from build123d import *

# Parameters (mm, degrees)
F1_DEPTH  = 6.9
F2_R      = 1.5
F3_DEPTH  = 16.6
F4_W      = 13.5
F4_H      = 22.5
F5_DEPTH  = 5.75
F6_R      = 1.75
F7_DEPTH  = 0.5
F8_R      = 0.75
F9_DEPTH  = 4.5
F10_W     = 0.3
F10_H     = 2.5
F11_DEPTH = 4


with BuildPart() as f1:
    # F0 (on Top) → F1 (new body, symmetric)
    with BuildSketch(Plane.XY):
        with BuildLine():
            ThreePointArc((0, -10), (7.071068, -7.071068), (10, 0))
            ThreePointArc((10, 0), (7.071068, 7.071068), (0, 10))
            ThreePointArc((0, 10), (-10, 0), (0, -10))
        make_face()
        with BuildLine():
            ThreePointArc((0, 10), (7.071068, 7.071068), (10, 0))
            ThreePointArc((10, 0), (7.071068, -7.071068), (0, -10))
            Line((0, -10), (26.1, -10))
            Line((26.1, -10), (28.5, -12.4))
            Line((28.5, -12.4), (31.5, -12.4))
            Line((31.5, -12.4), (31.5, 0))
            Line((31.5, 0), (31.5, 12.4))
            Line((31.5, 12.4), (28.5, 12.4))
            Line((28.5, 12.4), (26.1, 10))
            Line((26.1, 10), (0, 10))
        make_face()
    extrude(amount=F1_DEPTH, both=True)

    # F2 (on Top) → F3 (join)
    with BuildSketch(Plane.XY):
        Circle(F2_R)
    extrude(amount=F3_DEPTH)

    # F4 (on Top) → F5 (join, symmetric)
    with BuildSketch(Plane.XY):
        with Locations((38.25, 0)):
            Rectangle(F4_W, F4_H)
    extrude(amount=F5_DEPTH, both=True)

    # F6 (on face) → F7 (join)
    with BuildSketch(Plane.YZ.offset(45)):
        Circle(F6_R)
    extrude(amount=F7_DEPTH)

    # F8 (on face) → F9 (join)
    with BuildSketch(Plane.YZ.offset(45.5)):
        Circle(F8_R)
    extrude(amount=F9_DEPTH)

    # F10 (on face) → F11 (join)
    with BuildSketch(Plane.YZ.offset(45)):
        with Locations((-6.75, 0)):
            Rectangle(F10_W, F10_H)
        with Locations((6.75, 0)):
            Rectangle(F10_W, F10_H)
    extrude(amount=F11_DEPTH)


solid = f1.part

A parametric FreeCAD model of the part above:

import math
import FreeCAD as App
import Part
import Sketcher

doc = App.newDocument("Part")
body = doc.addObject("PartDesign::Body", "Body")

# Sketch on XY plane
sketch1 = body.newObject("Sketcher::SketchObject", "Sketch")
sketch1.AttachmentSupport = (doc.getObject("XY_Plane"), [""])
sketch1.MapMode = "FlatFace"
sketch1.addGeometry([
    Part.ArcOfCircle(Part.Circle(App.Vector(0, 0, 0), App.Vector(0, 0, 1), 10), math.radians(90), math.radians(270)),  # 0
    Part.LineSegment(App.Vector(0, -10, 0), App.Vector(26.1, -10, 0)),  # 1
    Part.LineSegment(App.Vector(26.1, -10, 0), App.Vector(28.5, -12.4, 0)),  # 2
    Part.LineSegment(App.Vector(28.5, -12.4, 0), App.Vector(31.5, -12.4, 0)),  # 3
    Part.LineSegment(App.Vector(31.5, -12.4, 0), App.Vector(31.5, 12.4, 0)),  # 4
    Part.LineSegment(App.Vector(31.5, 12.4, 0), App.Vector(28.5, 12.4, 0)),  # 5
    Part.LineSegment(App.Vector(28.5, 12.4, 0), App.Vector(26.1, 10, 0)),  # 6
    Part.LineSegment(App.Vector(26.1, 10, 0), App.Vector(0, 10, 0)),  # 7
], False)
sketch1.addConstraint([
    Sketcher.Constraint("Tangent", 0, 2, 1, 1),
    Sketcher.Constraint("Coincident", 1, 2, 2, 1),
    Sketcher.Constraint("Coincident", 2, 2, 3, 1),
    Sketcher.Constraint("Coincident", 3, 2, 4, 1),
    Sketcher.Constraint("Coincident", 4, 2, 5, 1),
    Sketcher.Constraint("Coincident", 5, 2, 6, 1),
    Sketcher.Constraint("Coincident", 6, 2, 7, 1),
    Sketcher.Constraint("Tangent", 7, 2, 0, 1),
    Sketcher.Constraint("Horizontal", 1),
    Sketcher.Constraint("Horizontal", 3),
    Sketcher.Constraint("Vertical", 4),
    Sketcher.Constraint("Horizontal", 5),
    Sketcher.Constraint("Horizontal", 7),
    Sketcher.Constraint("Coincident", 0, 3, -1, 1),
    Sketcher.Constraint("Symmetric", 2, 2, 5, 2, -1),
    Sketcher.Constraint("Perpendicular", 2, 6),
    Sketcher.Constraint("Vertical", 1, 2, 6, 2),
    Sketcher.Constraint("Radius", 0, 10.0),
    Sketcher.Constraint("DistanceX", 3, 1, 3, 2, 3.0),
    Sketcher.Constraint("DistanceX", 1, 1, 1, 2, 26.1),
    Sketcher.Constraint("DistanceY", 4, 1, 4, 2, 24.8),
])
pad1 = body.newObject("PartDesign::Pad", "Pad")
pad1.Profile = sketch1
pad1.Length = 13.8
pad1.Midplane = True

# Sketch on XY plane
sketch2 = body.newObject("Sketcher::SketchObject", "Sketch001")
sketch2.AttachmentSupport = (doc.getObject("XY_Plane"), [""])
sketch2.MapMode = "FlatFace"
sketch2.addGeometry(Part.Circle(App.Vector(0, 0, 0), App.Vector(0, 0, 1), 1.5), False)
sketch2.addConstraint([
    Sketcher.Constraint("Coincident", 0, 3, -1, 1),
    Sketcher.Constraint("Diameter", 0, 3.0),
])
pad2 = body.newObject("PartDesign::Pad", "Pad001")
pad2.Profile = sketch2
pad2.Length = 16.6

# Sketch on XY plane
sketch3 = body.newObject("Sketcher::SketchObject", "Sketch002")
sketch3.AttachmentSupport = (doc.getObject("XY_Plane"), [""])
sketch3.MapMode = "FlatFace"
sketch3.addGeometry([
    Part.LineSegment(App.Vector(31.5, 11.25, 0), App.Vector(31.5, -11.25, 0)),
    Part.LineSegment(App.Vector(31.5, -11.25, 0), App.Vector(45, -11.25, 0)),
    Part.LineSegment(App.Vector(45, -11.25, 0), App.Vector(45, 11.25, 0)),
    Part.LineSegment(App.Vector(45, 11.25, 0), App.Vector(31.5, 11.25, 0)),
], False)
sketch3.addConstraint([
    Sketcher.Constraint("Coincident", 0, 2, 1, 1),
    Sketcher.Constraint("Coincident", 1, 2, 2, 1),
    Sketcher.Constraint("Coincident", 2, 2, 3, 1),
    Sketcher.Constraint("Coincident", 3, 2, 0, 1),
    Sketcher.Constraint("Vertical", 0),
    Sketcher.Constraint("Horizontal", 1),
    Sketcher.Constraint("Vertical", 2),
    Sketcher.Constraint("Horizontal", 3),
    Sketcher.Constraint("DistanceX", 1, 1, 1, 2, 13.5),
    Sketcher.Constraint("DistanceY", 0, 2, 0, 1, 22.5),
    Sketcher.Constraint("DistanceX", -1, 1, 1, 2, 45.0),
    Sketcher.Constraint("DistanceY", 0, 2, -1, 1, 11.25),
])
pad3 = body.newObject("PartDesign::Pad", "Pad002")
pad3.Profile = sketch3
pad3.Length = 11.5
pad3.Midplane = True

# Sketch on YZ plane
sketch4 = body.newObject("Sketcher::SketchObject", "Sketch003")
sketch4.AttachmentSupport = (doc.getObject("YZ_Plane"), [""])
sketch4.MapMode = "FlatFace"
sketch4.AttachmentOffset = App.Placement(App.Vector(0, 0, 45), App.Rotation())
sketch4.addGeometry(Part.Circle(App.Vector(0, 0, 0), App.Vector(0, 0, 1), 1.75), False)
sketch4.addConstraint([
    Sketcher.Constraint("Coincident", 0, 3, -1, 1),
    Sketcher.Constraint("Diameter", 0, 3.5),
])
pad4 = body.newObject("PartDesign::Pad", "Pad003")
pad4.Profile = sketch4
pad4.Length = 0.5

# Sketch on YZ plane
sketch5 = body.newObject("Sketcher::SketchObject", "Sketch004")
sketch5.AttachmentSupport = (doc.getObject("YZ_Plane"), [""])
sketch5.MapMode = "FlatFace"
sketch5.AttachmentOffset = App.Placement(App.Vector(0, 0, 45.5), App.Rotation())
sketch5.addGeometry(Part.Circle(App.Vector(0, 0, 0), App.Vector(0, 0, 1), 0.75), False)
sketch5.addConstraint([
    Sketcher.Constraint("Coincident", 0, 3, -1, 1),
    Sketcher.Constraint("Diameter", 0, 1.5),
])
pad5 = body.newObject("PartDesign::Pad", "Pad004")
pad5.Profile = sketch5
pad5.Length = 4.5

# Sketch on YZ plane
sketch6 = body.newObject("Sketcher::SketchObject", "Sketch005")
sketch6.AttachmentSupport = (doc.getObject("YZ_Plane"), [""])
sketch6.MapMode = "FlatFace"
sketch6.AttachmentOffset = App.Placement(App.Vector(0, 0, 45), App.Rotation())
sketch6.addGeometry([
    Part.LineSegment(App.Vector(-6.9, 1.25, 0), App.Vector(-6.9, -1.25, 0)),  # 0
    Part.LineSegment(App.Vector(-6.9, -1.25, 0), App.Vector(-6.6, -1.25, 0)),  # 1
    Part.LineSegment(App.Vector(-6.6, -1.25, 0), App.Vector(-6.6, 1.25, 0)),  # 2
    Part.LineSegment(App.Vector(-6.6, 1.25, 0), App.Vector(-6.9, 1.25, 0)),  # 3
    Part.LineSegment(App.Vector(6.6, 1.25, 0), App.Vector(6.6, -1.25, 0)),  # 4
    Part.LineSegment(App.Vector(6.6, -1.25, 0), App.Vector(6.9, -1.25, 0)),  # 5
    Part.LineSegment(App.Vector(6.9, -1.25, 0), App.Vector(6.9, 1.25, 0)),  # 6
    Part.LineSegment(App.Vector(6.9, 1.25, 0), App.Vector(6.6, 1.25, 0)),  # 7
], False)
sketch6.addConstraint([
    Sketcher.Constraint("Coincident", 0, 2, 1, 1),
    Sketcher.Constraint("Coincident", 1, 2, 2, 1),
    Sketcher.Constraint("Coincident", 2, 2, 3, 1),
    Sketcher.Constraint("Coincident", 3, 2, 0, 1),
    Sketcher.Constraint("Coincident", 4, 2, 5, 1),
    Sketcher.Constraint("Coincident", 5, 2, 6, 1),
    Sketcher.Constraint("Coincident", 6, 2, 7, 1),
    Sketcher.Constraint("Coincident", 7, 2, 4, 1),
    Sketcher.Constraint("Vertical", 0),
    Sketcher.Constraint("Horizontal", 1),
    Sketcher.Constraint("Vertical", 2),
    Sketcher.Constraint("Horizontal", 3),
    Sketcher.Constraint("Vertical", 4),
    Sketcher.Constraint("Horizontal", 5),
    Sketcher.Constraint("Vertical", 6),
    Sketcher.Constraint("Horizontal", 7),
    Sketcher.Constraint("Symmetric", 2, 2, 4, 2, -1, 1),
    Sketcher.Constraint("Symmetric", 0, 2, 6, 2, -1, 1),
    Sketcher.Constraint("Horizontal", 1, 2, 4, 2),
    Sketcher.Constraint("DistanceX", 1, 1, 1, 2, 0.3),
    Sketcher.Constraint("DistanceY", 0, 2, 0, 1, 2.5),
    Sketcher.Constraint("DistanceX", 0, 2, -1, 1, 6.9),
])
pad6 = body.newObject("PartDesign::Pad", "Pad005")
pad6.Profile = sketch6
pad6.Length = 4

doc.recompute()
